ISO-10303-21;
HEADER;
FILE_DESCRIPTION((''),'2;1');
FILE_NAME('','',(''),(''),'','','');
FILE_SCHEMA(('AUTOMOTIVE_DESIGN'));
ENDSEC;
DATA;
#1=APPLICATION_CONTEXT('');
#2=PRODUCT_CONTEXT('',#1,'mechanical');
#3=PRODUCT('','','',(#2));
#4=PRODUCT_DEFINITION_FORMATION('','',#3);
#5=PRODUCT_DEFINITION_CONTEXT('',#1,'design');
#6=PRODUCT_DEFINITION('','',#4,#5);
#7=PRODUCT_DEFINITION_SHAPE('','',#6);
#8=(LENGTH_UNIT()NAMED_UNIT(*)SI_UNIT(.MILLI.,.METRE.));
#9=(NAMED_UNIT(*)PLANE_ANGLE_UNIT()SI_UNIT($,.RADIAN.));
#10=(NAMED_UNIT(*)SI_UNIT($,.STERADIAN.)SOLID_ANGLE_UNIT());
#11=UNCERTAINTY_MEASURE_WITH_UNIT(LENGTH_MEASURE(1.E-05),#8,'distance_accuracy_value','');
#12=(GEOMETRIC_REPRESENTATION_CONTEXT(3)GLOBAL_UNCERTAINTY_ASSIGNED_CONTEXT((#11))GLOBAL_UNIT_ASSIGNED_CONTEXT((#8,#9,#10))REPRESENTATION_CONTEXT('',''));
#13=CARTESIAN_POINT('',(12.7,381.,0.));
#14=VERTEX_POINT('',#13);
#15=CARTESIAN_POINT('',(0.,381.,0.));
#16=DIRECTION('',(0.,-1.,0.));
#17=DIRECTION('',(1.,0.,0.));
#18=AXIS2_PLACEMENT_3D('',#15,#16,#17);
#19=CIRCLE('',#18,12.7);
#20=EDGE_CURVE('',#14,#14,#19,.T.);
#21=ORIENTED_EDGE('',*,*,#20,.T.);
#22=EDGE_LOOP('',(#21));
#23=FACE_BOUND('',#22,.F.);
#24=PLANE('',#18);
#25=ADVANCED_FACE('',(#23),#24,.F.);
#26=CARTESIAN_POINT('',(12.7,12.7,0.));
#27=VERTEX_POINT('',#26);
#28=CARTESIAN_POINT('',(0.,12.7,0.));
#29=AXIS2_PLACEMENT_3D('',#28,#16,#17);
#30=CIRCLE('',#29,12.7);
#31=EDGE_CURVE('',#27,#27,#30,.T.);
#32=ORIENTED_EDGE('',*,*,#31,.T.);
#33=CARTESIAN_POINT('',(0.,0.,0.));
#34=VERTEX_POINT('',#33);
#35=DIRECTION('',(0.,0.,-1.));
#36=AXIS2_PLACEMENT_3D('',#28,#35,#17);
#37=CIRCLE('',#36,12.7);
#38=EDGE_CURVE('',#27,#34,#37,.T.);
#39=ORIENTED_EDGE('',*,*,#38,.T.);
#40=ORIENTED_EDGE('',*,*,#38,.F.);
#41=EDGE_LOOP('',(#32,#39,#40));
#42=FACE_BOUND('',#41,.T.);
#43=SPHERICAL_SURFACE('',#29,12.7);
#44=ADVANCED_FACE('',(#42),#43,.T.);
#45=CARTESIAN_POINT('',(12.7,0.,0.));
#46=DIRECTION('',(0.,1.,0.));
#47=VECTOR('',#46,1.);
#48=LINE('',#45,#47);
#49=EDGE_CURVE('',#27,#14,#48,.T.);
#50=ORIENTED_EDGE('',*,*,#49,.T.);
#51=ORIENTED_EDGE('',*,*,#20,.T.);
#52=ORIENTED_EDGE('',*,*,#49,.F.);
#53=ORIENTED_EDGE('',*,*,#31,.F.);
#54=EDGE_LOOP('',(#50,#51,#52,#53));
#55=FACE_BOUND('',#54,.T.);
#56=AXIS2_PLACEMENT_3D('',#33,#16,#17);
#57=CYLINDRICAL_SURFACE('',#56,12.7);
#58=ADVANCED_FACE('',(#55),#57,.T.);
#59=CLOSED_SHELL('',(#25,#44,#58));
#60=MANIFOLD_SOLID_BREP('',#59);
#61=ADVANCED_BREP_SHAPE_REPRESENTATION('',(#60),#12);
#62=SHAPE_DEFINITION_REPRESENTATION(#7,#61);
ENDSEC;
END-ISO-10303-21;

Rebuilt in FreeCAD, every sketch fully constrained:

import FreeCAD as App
import Part
import Sketcher
Q = App.Units.Quantity


def edges_at(feature, points):
    """Names of the edges that pass closest to the given points."""
    edges = feature.Shape.Edges
    near = lambda p: min(range(len(edges)), key=lambda i: edges[i].distToShape(Part.Vertex(*p))[0])
    return sorted({f"Edge{near(p) + 1}" for p in points})

doc = App.newDocument("Part")
params = doc.addObject("Spreadsheet::Sheet", "Params")
for row, (alias, value) in enumerate([
    ("sketch1_diameter", "1 in"),
    ("pad1_length", "15 in"),
    ("fillet_radius", "0.5 in"),
], start=1):
    params.set(f"A{row}", alias)
    params.set(f"B{row}", "=" + value)
    params.setAlias(f"B{row}", alias)

body = doc.addObject("PartDesign::Body", "Body")

# Sketch on XZ plane
sketch1 = body.newObject("Sketcher::SketchObject", "Sketch")
sketch1.AttachmentSupport = (doc.getObject("XZ_Plane"), [""])
sketch1.MapMode = "FlatFace"
sketch1.addGeometry(Part.Circle(App.Vector(0, 0, 0), App.Vector(0, 0, 1), 12.7), False)
sketch1.addConstraint([
    Sketcher.Constraint("Coincident", 0, 3, -1, 1),
    Sketcher.Constraint("Diameter", 0, Q("1 in")),
])
sketch1.setExpression("Constraints[1]", "Params.sketch1_diameter")
pad1 = body.newObject("PartDesign::Pad", "Pad")
pad1.Profile = sketch1
pad1.setExpression("Length", "Params.pad1_length")
pad1.Reversed = True
doc.recompute()

fillet = body.newObject("PartDesign::Fillet", "Fillet")
fillet.Base = (pad1, edges_at(pad1, [(-12.7, 0, 0)]))
fillet.setExpression("Radius", "Params.fillet_radius")

doc.recompute()
